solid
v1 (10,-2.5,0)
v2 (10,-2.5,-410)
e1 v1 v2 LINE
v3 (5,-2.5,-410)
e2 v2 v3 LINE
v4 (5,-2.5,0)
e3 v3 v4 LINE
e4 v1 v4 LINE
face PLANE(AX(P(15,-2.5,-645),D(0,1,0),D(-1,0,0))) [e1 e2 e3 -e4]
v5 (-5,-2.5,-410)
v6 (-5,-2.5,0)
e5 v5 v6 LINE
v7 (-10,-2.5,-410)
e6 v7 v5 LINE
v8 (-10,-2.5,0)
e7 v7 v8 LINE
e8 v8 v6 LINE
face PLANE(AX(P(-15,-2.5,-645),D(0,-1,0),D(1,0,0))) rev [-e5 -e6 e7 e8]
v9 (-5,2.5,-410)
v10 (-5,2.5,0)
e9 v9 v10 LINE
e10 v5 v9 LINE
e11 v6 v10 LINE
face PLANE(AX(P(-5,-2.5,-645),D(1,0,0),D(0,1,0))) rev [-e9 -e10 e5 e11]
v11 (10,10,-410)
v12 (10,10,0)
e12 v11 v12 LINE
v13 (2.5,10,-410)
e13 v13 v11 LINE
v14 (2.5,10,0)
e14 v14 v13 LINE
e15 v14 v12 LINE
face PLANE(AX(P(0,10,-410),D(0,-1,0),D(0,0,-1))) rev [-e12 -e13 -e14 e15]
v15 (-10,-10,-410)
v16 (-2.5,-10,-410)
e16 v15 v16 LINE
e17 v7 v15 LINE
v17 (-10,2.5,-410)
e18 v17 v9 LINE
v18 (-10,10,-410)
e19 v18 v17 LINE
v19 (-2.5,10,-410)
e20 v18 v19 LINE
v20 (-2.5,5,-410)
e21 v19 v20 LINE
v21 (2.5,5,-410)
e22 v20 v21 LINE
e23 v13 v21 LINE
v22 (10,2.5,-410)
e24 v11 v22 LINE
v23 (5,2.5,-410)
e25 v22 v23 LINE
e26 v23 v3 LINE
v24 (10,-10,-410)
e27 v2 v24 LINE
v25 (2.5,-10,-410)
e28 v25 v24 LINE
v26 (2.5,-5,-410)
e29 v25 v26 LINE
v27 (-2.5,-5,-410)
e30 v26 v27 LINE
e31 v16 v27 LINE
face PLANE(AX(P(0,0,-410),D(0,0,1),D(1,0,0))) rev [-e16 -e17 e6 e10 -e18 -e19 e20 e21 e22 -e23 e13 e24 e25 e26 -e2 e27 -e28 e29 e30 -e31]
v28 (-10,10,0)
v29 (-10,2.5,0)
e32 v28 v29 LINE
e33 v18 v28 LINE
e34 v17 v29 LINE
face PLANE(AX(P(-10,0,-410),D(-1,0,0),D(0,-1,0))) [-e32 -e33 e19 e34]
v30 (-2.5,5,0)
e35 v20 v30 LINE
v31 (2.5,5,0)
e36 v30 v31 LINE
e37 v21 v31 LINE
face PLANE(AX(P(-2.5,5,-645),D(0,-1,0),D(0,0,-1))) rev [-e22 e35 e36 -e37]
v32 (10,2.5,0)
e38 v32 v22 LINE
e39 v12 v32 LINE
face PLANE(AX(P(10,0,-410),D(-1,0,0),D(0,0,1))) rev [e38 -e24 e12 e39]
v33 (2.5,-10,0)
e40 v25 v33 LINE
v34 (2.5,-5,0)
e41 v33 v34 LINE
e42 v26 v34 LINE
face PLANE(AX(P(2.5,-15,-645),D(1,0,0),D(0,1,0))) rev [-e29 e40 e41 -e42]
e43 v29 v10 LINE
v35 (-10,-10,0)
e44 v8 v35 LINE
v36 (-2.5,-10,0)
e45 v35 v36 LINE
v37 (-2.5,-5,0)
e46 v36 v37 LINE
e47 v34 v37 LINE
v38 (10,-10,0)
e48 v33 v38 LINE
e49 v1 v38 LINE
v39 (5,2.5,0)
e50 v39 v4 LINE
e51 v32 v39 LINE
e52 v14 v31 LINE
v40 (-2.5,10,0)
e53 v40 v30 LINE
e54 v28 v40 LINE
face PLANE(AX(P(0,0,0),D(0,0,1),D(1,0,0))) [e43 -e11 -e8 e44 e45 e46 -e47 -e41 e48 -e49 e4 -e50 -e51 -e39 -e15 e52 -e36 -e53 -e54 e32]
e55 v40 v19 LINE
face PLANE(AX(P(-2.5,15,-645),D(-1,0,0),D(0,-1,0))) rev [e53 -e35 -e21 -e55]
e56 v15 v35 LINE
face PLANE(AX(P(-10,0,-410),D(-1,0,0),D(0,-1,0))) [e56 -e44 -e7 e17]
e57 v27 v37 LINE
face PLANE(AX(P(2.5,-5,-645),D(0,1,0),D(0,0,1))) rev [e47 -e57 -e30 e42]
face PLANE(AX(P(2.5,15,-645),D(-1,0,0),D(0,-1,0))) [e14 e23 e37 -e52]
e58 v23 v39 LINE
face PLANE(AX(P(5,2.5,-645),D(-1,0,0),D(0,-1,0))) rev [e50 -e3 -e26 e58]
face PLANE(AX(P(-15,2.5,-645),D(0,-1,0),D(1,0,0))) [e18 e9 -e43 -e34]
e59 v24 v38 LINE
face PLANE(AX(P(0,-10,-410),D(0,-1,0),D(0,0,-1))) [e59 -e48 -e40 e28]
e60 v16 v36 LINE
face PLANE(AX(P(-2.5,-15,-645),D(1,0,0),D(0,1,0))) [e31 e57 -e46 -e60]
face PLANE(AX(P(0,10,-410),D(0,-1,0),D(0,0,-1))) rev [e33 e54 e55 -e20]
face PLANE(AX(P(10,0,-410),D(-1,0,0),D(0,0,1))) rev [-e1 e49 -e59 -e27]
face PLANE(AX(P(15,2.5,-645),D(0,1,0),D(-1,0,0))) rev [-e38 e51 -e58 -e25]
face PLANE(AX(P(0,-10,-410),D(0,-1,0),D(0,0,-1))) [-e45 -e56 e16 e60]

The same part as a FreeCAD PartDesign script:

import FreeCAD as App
import Part
import Sketcher
from FreeCAD import Vector
Q = App.Units.Quantity

doc = App.newDocument("Part")
body = doc.addObject("PartDesign::Body", "Body")

# Sketch on XY plane
sketch1 = body.newObject("Sketcher::SketchObject", "Sketch")
sketch1.AttachmentSupport = (doc.getObject("XY_Plane"), [""])
sketch1.MapMode = "FlatFace"
sketch1.addGeometry([
    Part.LineSegment(Vector(-10, 10, 0), Vector(-10, -10, 0)),
    Part.LineSegment(Vector(-10, -10, 0), Vector(10, -10, 0)),
    Part.LineSegment(Vector(10, -10, 0), Vector(10, 10, 0)),
    Part.LineSegment(Vector(10, 10, 0), Vector(-10, 10, 0)),
], False)
sketch1.addConstraint([
    Sketcher.Constraint("Coincident", 0, 2, 1, 1),
    Sketcher.Constraint("Coincident", 1, 2, 2, 1),
    Sketcher.Constraint("Coincident", 2, 2, 3, 1),
    Sketcher.Constraint("Coincident", 3, 2, 0, 1),
    Sketcher.Constraint("Vertical", 0),
    Sketcher.Constraint("Horizontal", 1),
    Sketcher.Constraint("Vertical", 2),
    Sketcher.Constraint("Horizontal", 3),
    Sketcher.Constraint("Symmetric", 0, 2, 2, 2, -1, 1),
    Sketcher.Constraint("Equal", 3, 0),
    Sketcher.Constraint("DistanceX", 1, 1, 1, 2, Q("20 mm")),
])
pad1 = body.newObject("PartDesign::Pad", "Pad")
pad1.Profile = sketch1
pad1.Length = 410
pad1.Reversed = True

# Sketch on XY plane
sketch2 = body.newObject("Sketcher::SketchObject", "Sketch001")
sketch2.AttachmentSupport = (doc.getObject("XY_Plane"), [""])
sketch2.MapMode = "FlatFace"
sketch2.addGeometry([
    Part.LineSegment(Vector(-2, 15, 0), Vector(-2, 5, 0)),
    Part.LineSegment(Vector(-2, 5, 0), Vector(2, 5, 0)),
    Part.LineSegment(Vector(2, 5, 0), Vector(2, 15, 0)),
    Part.LineSegment(Vector(2, 15, 0), Vector(-2, 15, 0)),
], False)
sketch2.addConstraint([
    Sketcher.Constraint("Coincident", 0, 2, 1, 1),
    Sketcher.Constraint("Coincident", 1, 2, 2, 1),
    Sketcher.Constraint("Coincident", 2, 2, 3, 1),
    Sketcher.Constraint("Coincident", 3, 2, 0, 1),
    Sketcher.Constraint("Vertical", 0),
    Sketcher.Constraint("Horizontal", 1),
    Sketcher.Constraint("Vertical", 2),
    Sketcher.Constraint("Horizontal", 3),
    Sketcher.Constraint("DistanceX", 1, 1, 1, 2, Q("5 mm")),
    Sketcher.Constraint("DistanceY", 0, 2, 0, 1, Q("10 mm")),
    Sketcher.Constraint("DistanceY", -1, 1, 0, 2, Q("5 mm")),
    Sketcher.Constraint("DistanceX", 0, 2, -1, 1, Q("2.5 mm")),
])
pocket1 = body.newObject("PartDesign::Pocket", "Pocket")
pocket1.Profile = sketch2
pocket1.Length = 645
doc.recompute()

polarpattern = body.newObject("PartDesign::PolarPattern", "PolarPattern")
polarpattern.Originals = [pocket1]
polarpattern.Axis = (doc.getObject("Z_Axis"), [""])
polarpattern.Angle = 360
polarpattern.Occurrences = 4
body.Tip = polarpattern

doc.recompute()
